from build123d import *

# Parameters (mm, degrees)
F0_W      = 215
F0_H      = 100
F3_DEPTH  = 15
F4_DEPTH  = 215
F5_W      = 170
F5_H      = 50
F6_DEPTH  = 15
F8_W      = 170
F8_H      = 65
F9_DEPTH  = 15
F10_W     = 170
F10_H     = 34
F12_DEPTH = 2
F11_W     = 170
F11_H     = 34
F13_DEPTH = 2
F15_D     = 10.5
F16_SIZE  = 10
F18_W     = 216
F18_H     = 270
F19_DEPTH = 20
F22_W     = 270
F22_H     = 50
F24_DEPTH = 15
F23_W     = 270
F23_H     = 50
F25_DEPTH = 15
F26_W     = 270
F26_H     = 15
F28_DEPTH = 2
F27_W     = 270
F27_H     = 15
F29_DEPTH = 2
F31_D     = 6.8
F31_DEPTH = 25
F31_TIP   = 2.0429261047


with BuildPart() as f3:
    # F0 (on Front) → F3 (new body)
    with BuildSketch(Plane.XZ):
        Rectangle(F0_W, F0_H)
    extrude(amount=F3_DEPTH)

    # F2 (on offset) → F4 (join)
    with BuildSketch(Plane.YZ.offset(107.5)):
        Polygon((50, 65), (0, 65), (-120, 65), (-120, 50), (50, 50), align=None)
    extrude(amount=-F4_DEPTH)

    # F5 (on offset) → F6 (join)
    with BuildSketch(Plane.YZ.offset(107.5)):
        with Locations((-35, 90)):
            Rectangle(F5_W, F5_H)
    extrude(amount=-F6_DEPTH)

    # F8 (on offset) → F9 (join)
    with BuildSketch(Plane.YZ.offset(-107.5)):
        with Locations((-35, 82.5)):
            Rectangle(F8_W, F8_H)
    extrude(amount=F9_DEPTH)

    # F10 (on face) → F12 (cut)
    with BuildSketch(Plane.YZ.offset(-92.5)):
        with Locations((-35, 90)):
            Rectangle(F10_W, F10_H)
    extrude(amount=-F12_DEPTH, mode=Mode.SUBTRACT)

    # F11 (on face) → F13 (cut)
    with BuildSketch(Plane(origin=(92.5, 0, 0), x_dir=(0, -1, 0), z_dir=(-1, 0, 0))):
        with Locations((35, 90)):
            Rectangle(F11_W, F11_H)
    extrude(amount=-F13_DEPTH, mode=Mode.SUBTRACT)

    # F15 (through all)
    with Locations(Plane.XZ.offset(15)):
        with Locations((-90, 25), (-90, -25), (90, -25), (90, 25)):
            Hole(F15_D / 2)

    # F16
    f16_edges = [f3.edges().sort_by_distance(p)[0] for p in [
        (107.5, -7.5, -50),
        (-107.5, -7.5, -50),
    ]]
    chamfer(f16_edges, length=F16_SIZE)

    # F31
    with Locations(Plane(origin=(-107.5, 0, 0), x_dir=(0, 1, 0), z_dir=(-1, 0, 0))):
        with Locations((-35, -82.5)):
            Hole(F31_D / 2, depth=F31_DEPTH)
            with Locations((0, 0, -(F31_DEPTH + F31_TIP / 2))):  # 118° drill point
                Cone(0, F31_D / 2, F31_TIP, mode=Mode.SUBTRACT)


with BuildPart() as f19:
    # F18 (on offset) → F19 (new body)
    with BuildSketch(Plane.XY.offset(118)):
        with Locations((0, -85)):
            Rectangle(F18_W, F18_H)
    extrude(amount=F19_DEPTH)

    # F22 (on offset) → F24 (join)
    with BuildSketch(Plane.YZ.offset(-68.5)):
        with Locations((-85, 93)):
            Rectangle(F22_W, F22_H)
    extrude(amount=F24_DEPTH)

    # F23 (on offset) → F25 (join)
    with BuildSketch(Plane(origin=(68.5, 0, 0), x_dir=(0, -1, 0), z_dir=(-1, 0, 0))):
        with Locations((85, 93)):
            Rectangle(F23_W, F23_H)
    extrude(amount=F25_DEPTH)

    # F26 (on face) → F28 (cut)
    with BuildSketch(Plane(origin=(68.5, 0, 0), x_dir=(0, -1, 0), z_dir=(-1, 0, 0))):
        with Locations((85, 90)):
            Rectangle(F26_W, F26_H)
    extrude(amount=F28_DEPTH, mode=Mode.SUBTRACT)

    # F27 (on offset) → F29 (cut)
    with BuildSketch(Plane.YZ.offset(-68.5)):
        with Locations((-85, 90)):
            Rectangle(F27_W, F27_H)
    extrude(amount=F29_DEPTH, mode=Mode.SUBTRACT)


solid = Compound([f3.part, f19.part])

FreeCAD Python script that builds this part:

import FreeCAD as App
import Part
import Sketcher
from FreeCAD import Vector
Q = App.Units.Quantity


def edges_at(feature, points):
    """Names of the edges that pass closest to the given points."""
    edges = feature.Shape.Edges
    near = lambda p: min(range(len(edges)), key=lambda i: edges[i].distToShape(Part.Vertex(*p))[0])
    return sorted({f"Edge{near(p) + 1}" for p in points})

doc = App.newDocument("Part")
body = doc.addObject("PartDesign::Body", "Body")

# Sketch on XZ plane
sketch1 = doc.addObject("Sketcher::SketchObject", "Sketch")
body.addObject(sketch1)
sketch1.AttachmentSupport = (doc.XZ_Plane, [""])
sketch1.MapMode = "FlatFace"
sketch1.addGeometry([
    Part.LineSegment(Vector(-107.5, 50, 0), Vector(-107.5, -50, 0)),
    Part.LineSegment(Vector(-107.5, -50, 0), Vector(107.5, -50, 0)),
    Part.LineSegment(Vector(107.5, -50, 0), Vector(107.5, 50, 0)),
    Part.LineSegment(Vector(107.5, 50, 0), Vector(-107.5, 50, 0)),
], False)
sketch1.addConstraint([
    Sketcher.Constraint("Coincident", 0, 2, 1, 1),
    Sketcher.Constraint("Coincident", 1, 2, 2, 1),
    Sketcher.Constraint("Coincident", 2, 2, 3, 1),
    Sketcher.Constraint("Coincident", 3, 2, 0, 1),
    Sketcher.Constraint("Vertical", 0),
    Sketcher.Constraint("Horizontal", 1),
    Sketcher.Constraint("Vertical", 2),
    Sketcher.Constraint("Horizontal", 3),
    Sketcher.Constraint("Symmetric", 0, 2, 2, 2, -1, 1),
    Sketcher.Constraint("DistanceX", 1, 1, 1, 2, Q("215 mm")),
    Sketcher.Constraint("DistanceY", 0, 2, 0, 1, Q("100 mm")),
])
pad1 = doc.addObject("PartDesign::Pad", "Pad")
body.addObject(pad1)
pad1.Profile = sketch1
pad1.Length = 15

# Sketch on YZ plane
sketch2 = doc.addObject("Sketcher::SketchObject", "Sketch001")
body.addObject(sketch2)
sketch2.AttachmentSupport = (doc.YZ_Plane, [""])
sketch2.MapMode = "FlatFace"
sketch2.AttachmentOffset = App.Placement(Vector(0, 0, 107.5), App.Rotation())
sketch2.addGeometry([
    Part.LineSegment(Vector(50, 65, 0), Vector(-120, 65, 0)),
    Part.LineSegment(Vector(-120, 65, 0), Vector(-120, 50, 0)),
    Part.LineSegment(Vector(-120, 50, 0), Vector(50, 50, 0)),
    Part.LineSegment(Vector(50, 50, 0), Vector(50, 65, 0)),
], False)
sketch2.addConstraint([
    Sketcher.Constraint("Coincident", 0, 2, 1, 1),
    Sketcher.Constraint("Coincident", 1, 2, 2, 1),
    Sketcher.Constraint("Coincident", 2, 2, 3, 1),
    Sketcher.Constraint("Coincident", 3, 2, 0, 1),
    Sketcher.Constraint("Horizontal", 0),
    Sketcher.Constraint("Vertical", 1),
    Sketcher.Constraint("Horizontal", 2),
    Sketcher.Constraint("Vertical", 3),
    Sketcher.Constraint("DistanceX", 0, 2, 0, 1, Q("170 mm")),
    Sketcher.Constraint("DistanceY", 1, 2, 1, 1, Q("15 mm")),
    Sketcher.Constraint("DistanceX", 0, 2, -1, 1, Q("120 mm")),
    Sketcher.Constraint("DistanceY", -1, 1, 0, 2, Q("65 mm")),
])
pad2 = doc.addObject("PartDesign::Pad", "Pad001")
body.addObject(pad2)
pad2.Profile = sketch2
pad2.Length = 215
pad2.Reversed = True

# Sketch on YZ plane
sketch3 = doc.addObject("Sketcher::SketchObject", "Sketch002")
body.addObject(sketch3)
sketch3.AttachmentSupport = (doc.YZ_Plane, [""])
sketch3.MapMode = "FlatFace"
sketch3.AttachmentOffset = App.Placement(Vector(0, 0, 107.5), App.Rotation())
sketch3.addGeometry([
    Part.LineSegment(Vector(-120, 115, 0), Vector(-120, 65, 0)),
    Part.LineSegment(Vector(-120, 65, 0), Vector(50, 65, 0)),
    Part.LineSegment(Vector(50, 65, 0), Vector(50, 115, 0)),
    Part.LineSegment(Vector(50, 115, 0), Vector(-120, 115, 0)),
], False)
sketch3.addConstraint([
    Sketcher.Constraint("Coincident", 0, 2, 1, 1),
    Sketcher.Constraint("Coincident", 1, 2, 2, 1),
    Sketcher.Constraint("Coincident", 2, 2, 3, 1),
    Sketcher.Constraint("Coincident", 3, 2, 0, 1),
    Sketcher.Constraint("Vertical", 0),
    Sketcher.Constraint("Horizontal", 1),
    Sketcher.Constraint("Vertical", 2),
    Sketcher.Constraint("Horizontal", 3),
    Sketcher.Constraint("DistanceX", 1, 1, 1, 2, Q("170 mm")),
    Sketcher.Constraint("DistanceY", 0, 2, 0, 1, Q("50 mm")),
    Sketcher.Constraint("DistanceX", 0, 2, -1, 1, Q("120 mm")),
    Sketcher.Constraint("DistanceY", -1, 1, 0, 2, Q("65 mm")),
])
pad3 = doc.addObject("PartDesign::Pad", "Pad002")
body.addObject(pad3)
pad3.Profile = sketch3
pad3.Length = 15
pad3.Reversed = True

# Sketch on YZ plane
sketch4 = doc.addObject("Sketcher::SketchObject", "Sketch003")
body.addObject(sketch4)
sketch4.AttachmentSupport = (doc.YZ_Plane, [""])
sketch4.MapMode = "FlatFace"
sketch4.AttachmentOffset = App.Placement(Vector(0, 0, -107.5), App.Rotation())
sketch4.addGeometry([
    Part.LineSegment(Vector(-120, 115, 0), Vector(-120, 50, 0)),
    Part.LineSegment(Vector(-120, 50, 0), Vector(50, 50, 0)),
    Part.LineSegment(Vector(50, 50, 0), Vector(50, 115, 0)),
    Part.LineSegment(Vector(50, 115, 0), Vector(-120, 115, 0)),
], False)
sketch4.addConstraint([
    Sketcher.Constraint("Coincident", 0, 2, 1, 1),
    Sketcher.Constraint("Coincident", 1, 2, 2, 1),
    Sketcher.Constraint("Coincident", 2, 2, 3, 1),
    Sketcher.Constraint("Coincident", 3, 2, 0, 1),
    Sketcher.Constraint("Vertical", 0),
    Sketcher.Constraint("Horizontal", 1),
    Sketcher.Constraint("Vertical", 2),
    Sketcher.Constraint("Horizontal", 3),
    Sketcher.Constraint("DistanceX", 1, 1, 1, 2, Q("170 mm")),
    Sketcher.Constraint("DistanceY", 0, 2, 0, 1, Q("65 mm")),
    Sketcher.Constraint("DistanceX", 0, 2, -1, 1, Q("120 mm")),
    Sketcher.Constraint("DistanceY", -1, 1, 0, 2, Q("50 mm")),
])
pad4 = doc.addObject("PartDesign::Pad", "Pad003")
body.addObject(pad4)
pad4.Profile = sketch4
pad4.Length = 15

# Sketch on YZ plane
sketch5 = doc.addObject("Sketcher::SketchObject", "Sketch004")
body.addObject(sketch5)
sketch5.AttachmentSupport = (doc.YZ_Plane, [""])
sketch5.MapMode = "FlatFace"
sketch5.AttachmentOffset = App.Placement(Vector(0, 0, -92.5), App.Rotation())
sketch5.addGeometry([
    Part.LineSegment(Vector(-120, 107, 0), Vector(-120, 73, 0)),
    Part.LineSegment(Vector(-120, 73, 0), Vector(50, 73, 0)),
    Part.LineSegment(Vector(50, 73, 0), Vector(50, 107, 0)),
    Part.LineSegment(Vector(50, 107, 0), Vector(-120, 107, 0)),
], False)
sketch5.addConstraint([
    Sketcher.Constraint("Coincident", 0, 2, 1, 1),
    Sketcher.Constraint("Coincident", 1, 2, 2, 1),
    Sketcher.Constraint("Coincident", 2, 2, 3, 1),
    Sketcher.Constraint("Coincident", 3, 2, 0, 1),
    Sketcher.Constraint("Vertical", 0),
    Sketcher.Constraint("Horizontal", 1),
    Sketcher.Constraint("Vertical", 2),
    Sketcher.Constraint("Horizontal", 3),
    Sketcher.Constraint("DistanceX", 1, 1, 1, 2, Q("170 mm")),
    Sketcher.Constraint("DistanceY", 0, 2, 0, 1, Q("34 mm")),
    Sketcher.Constraint("DistanceX", 0, 2, -1, 1, Q("120 mm")),
    Sketcher.Constraint("DistanceY", -1, 1, 0, 2, Q("73 mm")),
])
pocket1 = doc.addObject("PartDesign::Pocket", "Pocket")
body.addObject(pocket1)
pocket1.Profile = sketch5
pocket1.Length = 2

# Sketch on YZ plane
sketch6 = doc.addObject("Sketcher::SketchObject", "Sketch005")
body.addObject(sketch6)
sketch6.AttachmentSupport = (doc.YZ_Plane, [""])
sketch6.MapMode = "FlatFace"
sketch6.AttachmentOffset = App.Placement(Vector(0, 0, 92.5), App.Rotation())
sketch6.addGeometry([
    Part.LineSegment(Vector(50, 107, 0), Vector(50, 73, 0)),
    Part.LineSegment(Vector(50, 73, 0), Vector(-120, 73, 0)),
    Part.LineSegment(Vector(-120, 73, 0), Vector(-120, 107, 0)),
    Part.LineSegment(Vector(-120, 107, 0), Vector(50, 107, 0)),
], False)
sketch6.addConstraint([
    Sketcher.Constraint("Coincident", 0, 2, 1, 1),
    Sketcher.Constraint("Coincident", 1, 2, 2, 1),
    Sketcher.Constraint("Coincident", 2, 2, 3, 1),
    Sketcher.Constraint("Coincident", 3, 2, 0, 1),
    Sketcher.Constraint("Vertical", 0),
    Sketcher.Constraint("Horizontal", 1),
    Sketcher.Constraint("Vertical", 2),
    Sketcher.Constraint("Horizontal", 3),
    Sketcher.Constraint("DistanceX", 1, 2, 1, 1, Q("170 mm")),
    Sketcher.Constraint("DistanceY", 0, 2, 0, 1, Q("34 mm")),
    Sketcher.Constraint("DistanceX", -1, 1, 0, 2, Q("50 mm")),
    Sketcher.Constraint("DistanceY", -1, 1, 0, 2, Q("73 mm")),
])
pocket2 = doc.addObject("PartDesign::Pocket", "Pocket001")
body.addObject(pocket2)
pocket2.Profile = sketch6
pocket2.Length = 2
pocket2.Reversed = True

# Sketch on XZ plane
sketch7 = doc.addObject("Sketcher::SketchObject", "Sketch006")
body.addObject(sketch7)
sketch7.AttachmentSupport = (doc.XZ_Plane, [""])
sketch7.MapMode = "FlatFace"
sketch7.AttachmentOffset = App.Placement(Vector(0, 0, 15), App.Rotation())
sketch7.addGeometry([
    Part.Circle(Vector(-90, 25, 0), Vector(0, 0, 1), 5.25),
    Part.Circle(Vector(-90, -25, 0), Vector(0, 0, 1), 5.25),
    Part.Circle(Vector(90, -25, 0), Vector(0, 0, 1), 5.25),
    Part.Circle(Vector(90, 25, 0), Vector(0, 0, 1), 5.25),
], False)
sketch7.addConstraint([
    Sketcher.Constraint("Equal", 0, 1),
    Sketcher.Constraint("Equal", 1, 2),
    Sketcher.Constraint("Equal", 2, 3),
    Sketcher.Constraint("Symmetric", 0, 3, 2, 3, -1, 1),
    Sketcher.Constraint("Symmetric", 1, 3, 3, 3, -1, 1),
    Sketcher.Constraint("Symmetric", 1, 3, 2, 3, -2),
    Sketcher.Constraint("Diameter", 0, Q("10.5 mm")),
    Sketcher.Constraint("DistanceX", 0, 3, -1, 1, Q("90 mm")),
    Sketcher.Constraint("DistanceY", -1, 1, 0, 3, Q("25 mm")),
])
doc.recompute()
hole = doc.addObject("PartDesign::Hole", "Hole")
body.addObject(hole)
hole.Profile = sketch7
hole.ThreadType = "None"
hole.Diameter = 10.5
hole.DepthType = "ThroughAll"
doc.recompute()

chamfer = doc.addObject("PartDesign::Chamfer", "Chamfer")
body.addObject(chamfer)
chamfer.Base = (hole, edges_at(hole, [(107.5, -7.5, -50), (-107.5, -7.5, -50)]))
chamfer.Size = 10

# Sketch on YZ plane
sketch8 = doc.addObject("Sketcher::SketchObject", "Sketch007")
body.addObject(sketch8)
sketch8.AttachmentSupport = (doc.YZ_Plane, [""])
sketch8.MapMode = "FlatFace"
sketch8.AttachmentOffset = App.Placement(Vector(0, 0, -107.5), App.Rotation())
sketch8.addGeometry(Part.Circle(Vector(-35, 82.5, 0), Vector(0, 0, 1), 3.4), False)
sketch8.addConstraint([
    Sketcher.Constraint("Diameter", 0, Q("6.8 mm")),
    Sketcher.Constraint("DistanceX", 0, 3, -1, 1, Q("35 mm")),
    Sketcher.Constraint("DistanceY", -1, 1, 0, 3, Q("82.5 mm")),
])
doc.recompute()
hole2 = doc.addObject("PartDesign::Hole", "Hole001")
body.addObject(hole2)
hole2.Profile = sketch8
hole2.ThreadType = "None"
hole2.Diameter = 6.8
hole2.DepthType = "Dimension"
hole2.Depth = 25
hole2.DrillPoint = "Angled"
hole2.DrillPointAngle = 118
hole2.Reversed = True
body2 = doc.addObject("PartDesign::Body", "Body001")

# Sketch on XY plane
sketch9 = doc.addObject("Sketcher::SketchObject", "Sketch008")
body2.addObject(sketch9)
sketch9.AttachmentSupport = (doc.getObject("XY_Plane001"), [""])
sketch9.MapMode = "FlatFace"
sketch9.AttachmentOffset = App.Placement(Vector(0, 0, 118), App.Rotation())
sketch9.addGeometry([
    Part.LineSegment(Vector(-108, 50, 0), Vector(-108, -220, 0)),
    Part.LineSegment(Vector(-108, -220, 0), Vector(108, -220, 0)),
    Part.LineSegment(Vector(108, -220, 0), Vector(108, 50, 0)),
    Part.LineSegment(Vector(108, 50, 0), Vector(-108, 50, 0)),
], False)
sketch9.addConstraint([
    Sketcher.Constraint("Coincident", 0, 2, 1, 1),
    Sketcher.Constraint("Coincident", 1, 2, 2, 1),
    Sketcher.Constraint("Coincident", 2, 2, 3, 1),
    Sketcher.Constraint("Coincident", 3, 2, 0, 1),
    Sketcher.Constraint("Vertical", 0),
    Sketcher.Constraint("Horizontal", 1),
    Sketcher.Constraint("Vertical", 2),
    Sketcher.Constraint("Horizontal", 3),
    Sketcher.Constraint("DistanceX", 1, 1, 1, 2, Q("216 mm")),
    Sketcher.Constraint("DistanceY", 0, 2, 0, 1, Q("270 mm")),
    Sketcher.Constraint("DistanceX", 0, 2, -1, 1, Q("108 mm")),
    Sketcher.Constraint("DistanceY", 0, 2, -1, 1, Q("220 mm")),
])
pad5 = doc.addObject("PartDesign::Pad", "Pad004")
body2.addObject(pad5)
pad5.Profile = sketch9
pad5.Length = 20

# Sketch on YZ plane
sketch10 = doc.addObject("Sketcher::SketchObject", "Sketch009")
body2.addObject(sketch10)
sketch10.AttachmentSupport = (doc.getObject("YZ_Plane001"), [""])
sketch10.MapMode = "FlatFace"
sketch10.AttachmentOffset = App.Placement(Vector(0, 0, -68.5), App.Rotation())
sketch10.addGeometry([
    Part.LineSegment(Vector(-220, 118, 0), Vector(-220, 68, 0)),
    Part.LineSegment(Vector(-220, 68, 0), Vector(50, 68, 0)),
    Part.LineSegment(Vector(50, 68, 0), Vector(50, 118, 0)),
    Part.LineSegment(Vector(50, 118, 0), Vector(-220, 118, 0)),
], False)
sketch10.addConstraint([
    Sketcher.Constraint("Coincident", 0, 2, 1, 1),
    Sketcher.Constraint("Coincident", 1, 2, 2, 1),
    Sketcher.Constraint("Coincident", 2, 2, 3, 1),
    Sketcher.Constraint("Coincident", 3, 2, 0, 1),
    Sketcher.Constraint("Vertical", 0),
    Sketcher.Constraint("Horizontal", 1),
    Sketcher.Constraint("Vertical", 2),
    Sketcher.Constraint("Horizontal", 3),
    Sketcher.Constraint("DistanceX", 1, 1, 1, 2, Q("270 mm")),
    Sketcher.Constraint("DistanceY", 0, 2, 0, 1, Q("50 mm")),
    Sketcher.Constraint("DistanceX", 0, 2, -1, 1, Q("220 mm")),
    Sketcher.Constraint("DistanceY", -1, 1, 0, 2, Q("68 mm")),
])
pad6 = doc.addObject("PartDesign::Pad", "Pad005")
body2.addObject(pad6)
pad6.Profile = sketch10
pad6.Length = 15

# Sketch on YZ plane
sketch11 = doc.addObject("Sketcher::SketchObject", "Sketch010")
body2.addObject(sketch11)
sketch11.AttachmentSupport = (doc.getObject("YZ_Plane001"), [""])
sketch11.MapMode = "FlatFace"
sketch11.AttachmentOffset = App.Placement(Vector(0, 0, 68.5), App.Rotation())
sketch11.addGeometry([
    Part.LineSegment(Vector(50, 118, 0), Vector(50, 68, 0)),
    Part.LineSegment(Vector(50, 68, 0), Vector(-220, 68, 0)),
    Part.LineSegment(Vector(-220, 68, 0), Vector(-220, 118, 0)),
    Part.LineSegment(Vector(-220, 118, 0), Vector(50, 118, 0)),
], False)
sketch11.addConstraint([
    Sketcher.Constraint("Coincident", 0, 2, 1, 1),
    Sketcher.Constraint("Coincident", 1, 2, 2, 1),
    Sketcher.Constraint("Coincident", 2, 2, 3, 1),
    Sketcher.Constraint("Coincident", 3, 2, 0, 1),
    Sketcher.Constraint("Vertical", 0),
    Sketcher.Constraint("Horizontal", 1),
    Sketcher.Constraint("Vertical", 2),
    Sketcher.Constraint("Horizontal", 3),
    Sketcher.Constraint("DistanceX", 1, 2, 1, 1, Q("270 mm")),
    Sketcher.Constraint("DistanceY", 0, 2, 0, 1, Q("50 mm")),
    Sketcher.Constraint("DistanceX", -1, 1, 0, 2, Q("50 mm")),
    Sketcher.Constraint("DistanceY", -1, 1, 0, 2, Q("68 mm")),
])
pad7 = doc.addObject("PartDesign::Pad", "Pad006")
body2.addObject(pad7)
pad7.Profile = sketch11
pad7.Length = 15
pad7.Reversed = True

# Sketch on YZ plane
sketch12 = doc.addObject("Sketcher::SketchObject", "Sketch011")
body2.addObject(sketch12)
sketch12.AttachmentSupport = (doc.getObject("YZ_Plane001"), [""])
sketch12.MapMode = "FlatFace"
sketch12.AttachmentOffset = App.Placement(Vector(0, 0, 68.5), App.Rotation())
sketch12.addGeometry([
    Part.LineSegment(Vector(50, 97.5, 0), Vector(50, 82.5, 0)),
    Part.LineSegment(Vector(50, 82.5, 0), Vector(-220, 82.5, 0)),
    Part.LineSegment(Vector(-220, 82.5, 0), Vector(-220, 97.5, 0)),
    Part.LineSegment(Vector(-220, 97.5, 0), Vector(50, 97.5, 0)),
], False)
sketch12.addConstraint([
    Sketcher.Constraint("Coincident", 0, 2, 1, 1),
    Sketcher.Constraint("Coincident", 1, 2, 2, 1),
    Sketcher.Constraint("Coincident", 2, 2, 3, 1),
    Sketcher.Constraint("Coincident", 3, 2, 0, 1),
    Sketcher.Constraint("Vertical", 0),
    Sketcher.Constraint("Horizontal", 1),
    Sketcher.Constraint("Vertical", 2),
    Sketcher.Constraint("Horizontal", 3),
    Sketcher.Constraint("DistanceX", 1, 2, 1, 1, Q("270 mm")),
    Sketcher.Constraint("DistanceY", 0, 2, 0, 1, Q("15 mm")),
    Sketcher.Constraint("DistanceX", -1, 1, 0, 2, Q("50 mm")),
    Sketcher.Constraint("DistanceY", -1, 1, 0, 2, Q("82.5 mm")),
])
pocket3 = doc.addObject("PartDesign::Pocket", "Pocket002")
body2.addObject(pocket3)
pocket3.Profile = sketch12
pocket3.Length = 2

# Sketch on YZ plane
sketch13 = doc.addObject("Sketcher::SketchObject", "Sketch012")
body2.addObject(sketch13)
sketch13.AttachmentSupport = (doc.getObject("YZ_Plane001"), [""])
sketch13.MapMode = "FlatFace"
sketch13.AttachmentOffset = App.Placement(Vector(0, 0, -68.5), App.Rotation())
sketch13.addGeometry([
    Part.LineSegment(Vector(-220, 97.5, 0), Vector(-220, 82.5, 0)),
    Part.LineSegment(Vector(-220, 82.5, 0), Vector(50, 82.5, 0)),
    Part.LineSegment(Vector(50, 82.5, 0), Vector(50, 97.5, 0)),
    Part.LineSegment(Vector(50, 97.5, 0), Vector(-220, 97.5, 0)),
], False)
sketch13.addConstraint([
    Sketcher.Constraint("Coincident", 0, 2, 1, 1),
    Sketcher.Constraint("Coincident", 1, 2, 2, 1),
    Sketcher.Constraint("Coincident", 2, 2, 3, 1),
    Sketcher.Constraint("Coincident", 3, 2, 0, 1),
    Sketcher.Constraint("Vertical", 0),
    Sketcher.Constraint("Horizontal", 1),
    Sketcher.Constraint("Vertical", 2),
    Sketcher.Constraint("Horizontal", 3),
    Sketcher.Constraint("DistanceX", 1, 1, 1, 2, Q("270 mm")),
    Sketcher.Constraint("DistanceY", 0, 2, 0, 1, Q("15 mm")),
    Sketcher.Constraint("DistanceX", 0, 2, -1, 1, Q("220 mm")),
    Sketcher.Constraint("DistanceY", -1, 1, 0, 2, Q("82.5 mm")),
])
pocket4 = doc.addObject("PartDesign::Pocket", "Pocket003")
body2.addObject(pocket4)
pocket4.Profile = sketch13
pocket4.Length = 2
pocket4.Reversed = True

doc.recompute()
